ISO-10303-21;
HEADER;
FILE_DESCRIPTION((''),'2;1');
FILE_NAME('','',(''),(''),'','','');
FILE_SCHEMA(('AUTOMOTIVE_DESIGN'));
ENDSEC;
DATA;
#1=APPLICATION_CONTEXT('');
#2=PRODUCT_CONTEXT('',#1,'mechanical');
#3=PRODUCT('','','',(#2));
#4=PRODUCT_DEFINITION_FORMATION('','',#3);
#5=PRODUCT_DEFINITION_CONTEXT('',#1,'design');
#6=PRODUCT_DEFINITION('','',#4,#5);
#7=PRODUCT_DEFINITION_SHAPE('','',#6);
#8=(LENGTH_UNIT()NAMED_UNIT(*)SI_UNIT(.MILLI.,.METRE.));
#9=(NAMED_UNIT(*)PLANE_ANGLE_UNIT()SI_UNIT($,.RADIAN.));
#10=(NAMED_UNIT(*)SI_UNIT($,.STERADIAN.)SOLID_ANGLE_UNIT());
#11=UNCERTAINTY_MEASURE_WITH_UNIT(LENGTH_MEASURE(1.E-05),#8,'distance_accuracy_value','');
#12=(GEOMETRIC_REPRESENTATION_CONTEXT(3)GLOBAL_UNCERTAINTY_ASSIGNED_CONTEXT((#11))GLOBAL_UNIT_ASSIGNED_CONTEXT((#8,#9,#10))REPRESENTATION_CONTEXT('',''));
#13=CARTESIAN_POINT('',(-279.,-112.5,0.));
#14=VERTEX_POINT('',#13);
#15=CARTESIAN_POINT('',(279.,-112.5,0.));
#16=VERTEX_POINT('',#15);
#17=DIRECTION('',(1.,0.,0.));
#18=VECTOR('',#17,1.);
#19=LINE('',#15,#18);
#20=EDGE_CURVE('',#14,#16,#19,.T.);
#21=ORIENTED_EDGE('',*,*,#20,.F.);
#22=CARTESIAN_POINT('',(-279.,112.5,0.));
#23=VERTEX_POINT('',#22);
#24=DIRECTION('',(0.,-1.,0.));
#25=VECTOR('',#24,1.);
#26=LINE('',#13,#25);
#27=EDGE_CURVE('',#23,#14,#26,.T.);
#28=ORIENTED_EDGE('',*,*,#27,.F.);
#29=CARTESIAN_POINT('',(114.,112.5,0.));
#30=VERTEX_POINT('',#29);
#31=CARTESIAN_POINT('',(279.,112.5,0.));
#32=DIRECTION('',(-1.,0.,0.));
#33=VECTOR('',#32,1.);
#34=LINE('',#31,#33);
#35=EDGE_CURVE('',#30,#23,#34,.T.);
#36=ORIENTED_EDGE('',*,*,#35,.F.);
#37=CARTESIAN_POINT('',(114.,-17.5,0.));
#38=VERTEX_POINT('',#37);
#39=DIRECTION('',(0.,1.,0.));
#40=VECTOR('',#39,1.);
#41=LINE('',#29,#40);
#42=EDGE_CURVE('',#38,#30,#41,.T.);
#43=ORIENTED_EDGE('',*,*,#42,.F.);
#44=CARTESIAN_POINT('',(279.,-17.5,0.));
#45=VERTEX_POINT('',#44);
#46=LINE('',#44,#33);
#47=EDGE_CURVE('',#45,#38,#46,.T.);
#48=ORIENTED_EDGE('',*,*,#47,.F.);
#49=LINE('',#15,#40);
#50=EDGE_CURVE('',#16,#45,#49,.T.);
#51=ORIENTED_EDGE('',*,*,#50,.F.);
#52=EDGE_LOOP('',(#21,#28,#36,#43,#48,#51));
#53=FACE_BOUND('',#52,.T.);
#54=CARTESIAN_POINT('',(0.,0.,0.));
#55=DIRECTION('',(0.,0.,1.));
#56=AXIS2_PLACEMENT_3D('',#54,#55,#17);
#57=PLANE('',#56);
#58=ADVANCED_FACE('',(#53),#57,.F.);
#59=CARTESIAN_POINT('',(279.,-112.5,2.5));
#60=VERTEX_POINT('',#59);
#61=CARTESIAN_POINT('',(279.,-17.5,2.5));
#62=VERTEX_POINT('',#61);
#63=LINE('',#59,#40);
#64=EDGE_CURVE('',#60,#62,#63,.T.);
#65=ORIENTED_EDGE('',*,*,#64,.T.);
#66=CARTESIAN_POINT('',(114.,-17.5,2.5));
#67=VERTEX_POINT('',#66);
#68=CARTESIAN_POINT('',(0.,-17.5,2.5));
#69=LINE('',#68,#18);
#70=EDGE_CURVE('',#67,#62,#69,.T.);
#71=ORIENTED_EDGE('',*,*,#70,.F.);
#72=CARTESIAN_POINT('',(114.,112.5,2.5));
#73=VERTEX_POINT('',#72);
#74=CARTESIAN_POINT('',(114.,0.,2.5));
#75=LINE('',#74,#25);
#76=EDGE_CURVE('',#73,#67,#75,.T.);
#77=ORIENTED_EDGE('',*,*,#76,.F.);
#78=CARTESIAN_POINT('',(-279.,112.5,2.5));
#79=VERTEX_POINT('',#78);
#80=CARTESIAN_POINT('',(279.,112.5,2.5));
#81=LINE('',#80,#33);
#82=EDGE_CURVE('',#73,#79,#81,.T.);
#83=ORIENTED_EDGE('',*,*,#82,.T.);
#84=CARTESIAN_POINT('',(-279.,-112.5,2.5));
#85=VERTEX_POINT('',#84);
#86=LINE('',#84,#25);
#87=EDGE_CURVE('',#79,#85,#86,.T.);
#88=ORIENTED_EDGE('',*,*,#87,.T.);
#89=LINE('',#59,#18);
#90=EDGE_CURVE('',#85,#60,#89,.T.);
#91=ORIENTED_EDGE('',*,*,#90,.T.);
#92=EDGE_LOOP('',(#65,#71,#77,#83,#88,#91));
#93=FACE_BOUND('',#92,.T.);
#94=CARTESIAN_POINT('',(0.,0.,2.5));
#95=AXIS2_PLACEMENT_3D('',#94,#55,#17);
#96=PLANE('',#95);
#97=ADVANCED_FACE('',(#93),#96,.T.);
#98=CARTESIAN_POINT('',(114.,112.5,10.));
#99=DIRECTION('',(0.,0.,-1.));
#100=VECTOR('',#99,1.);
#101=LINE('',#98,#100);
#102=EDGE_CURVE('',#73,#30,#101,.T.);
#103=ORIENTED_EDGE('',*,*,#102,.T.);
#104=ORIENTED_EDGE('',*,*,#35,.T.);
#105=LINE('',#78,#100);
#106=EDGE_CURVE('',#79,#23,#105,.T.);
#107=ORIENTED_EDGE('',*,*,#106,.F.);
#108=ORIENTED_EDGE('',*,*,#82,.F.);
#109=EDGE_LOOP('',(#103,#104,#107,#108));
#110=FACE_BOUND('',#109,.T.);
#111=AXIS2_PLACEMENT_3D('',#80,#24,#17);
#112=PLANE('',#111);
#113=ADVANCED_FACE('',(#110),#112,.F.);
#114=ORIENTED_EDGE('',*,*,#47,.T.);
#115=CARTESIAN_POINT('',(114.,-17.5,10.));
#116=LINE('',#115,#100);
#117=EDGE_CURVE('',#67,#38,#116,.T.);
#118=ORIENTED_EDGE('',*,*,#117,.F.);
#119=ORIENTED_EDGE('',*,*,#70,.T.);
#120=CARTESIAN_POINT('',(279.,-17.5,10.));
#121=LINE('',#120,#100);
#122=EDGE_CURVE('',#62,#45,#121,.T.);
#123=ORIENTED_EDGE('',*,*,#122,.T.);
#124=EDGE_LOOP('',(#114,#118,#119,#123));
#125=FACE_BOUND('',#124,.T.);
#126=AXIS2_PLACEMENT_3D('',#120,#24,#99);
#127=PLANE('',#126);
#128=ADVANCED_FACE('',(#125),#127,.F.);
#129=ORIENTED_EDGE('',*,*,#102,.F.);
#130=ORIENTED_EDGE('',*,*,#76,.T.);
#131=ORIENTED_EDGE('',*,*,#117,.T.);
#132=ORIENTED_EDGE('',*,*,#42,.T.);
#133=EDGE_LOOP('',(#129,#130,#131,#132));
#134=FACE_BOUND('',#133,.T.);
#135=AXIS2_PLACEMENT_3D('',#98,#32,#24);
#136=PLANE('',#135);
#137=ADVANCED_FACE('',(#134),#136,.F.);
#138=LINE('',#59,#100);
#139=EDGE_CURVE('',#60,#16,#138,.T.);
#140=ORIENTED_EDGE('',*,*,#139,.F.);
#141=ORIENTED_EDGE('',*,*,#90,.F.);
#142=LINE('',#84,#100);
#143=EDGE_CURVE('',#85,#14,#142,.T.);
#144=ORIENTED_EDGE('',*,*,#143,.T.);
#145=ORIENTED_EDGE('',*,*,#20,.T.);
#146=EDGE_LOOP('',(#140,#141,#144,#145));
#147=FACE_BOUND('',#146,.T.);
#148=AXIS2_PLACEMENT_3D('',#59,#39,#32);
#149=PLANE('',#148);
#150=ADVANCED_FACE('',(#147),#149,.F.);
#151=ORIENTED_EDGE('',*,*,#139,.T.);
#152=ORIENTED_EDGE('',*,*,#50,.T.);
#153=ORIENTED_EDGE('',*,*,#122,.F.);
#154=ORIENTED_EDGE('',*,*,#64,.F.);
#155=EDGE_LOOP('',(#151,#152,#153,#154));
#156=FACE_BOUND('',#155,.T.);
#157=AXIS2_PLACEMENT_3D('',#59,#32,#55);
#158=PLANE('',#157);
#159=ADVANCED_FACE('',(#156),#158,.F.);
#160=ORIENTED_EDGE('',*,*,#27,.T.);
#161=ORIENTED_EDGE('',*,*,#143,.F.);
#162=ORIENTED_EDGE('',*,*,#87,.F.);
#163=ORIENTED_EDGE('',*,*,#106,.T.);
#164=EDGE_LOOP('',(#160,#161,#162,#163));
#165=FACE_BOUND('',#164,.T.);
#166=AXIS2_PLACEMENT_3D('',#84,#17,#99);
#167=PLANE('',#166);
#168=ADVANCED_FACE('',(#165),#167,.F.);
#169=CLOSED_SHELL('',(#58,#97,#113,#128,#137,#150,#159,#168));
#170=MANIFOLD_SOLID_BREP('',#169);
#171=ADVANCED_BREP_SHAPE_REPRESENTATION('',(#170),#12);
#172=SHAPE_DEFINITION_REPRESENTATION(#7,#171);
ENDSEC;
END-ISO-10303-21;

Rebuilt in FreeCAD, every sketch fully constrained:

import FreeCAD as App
import Part
import Sketcher

doc = App.newDocument("Part")
body = doc.addObject("PartDesign::Body", "Body")

# Sketch on XY plane
sketch1 = body.newObject("Sketcher::SketchObject", "Sketch")
sketch1.AttachmentSupport = (doc.getObject("XY_Plane"), [""])
sketch1.MapMode = "FlatFace"
sketch1.addGeometry(Part.LineSegment(App.Vector(-279, 112, 0), App.Vector(-279, -112, 0)), False)
sketch1.addGeometry(Part.LineSegment(App.Vector(-279, -112, 0), App.Vector(279, -112, 0)), False)
sketch1.addGeometry(Part.LineSegment(App.Vector(279, -112, 0), App.Vector(279, 112, 0)), False)
sketch1.addGeometry(Part.LineSegment(App.Vector(279, 112, 0), App.Vector(-279, 112, 0)), False)
sketch1.addConstraint(Sketcher.Constraint("Coincident", 0, 2, 1, 1))
sketch1.addConstraint(Sketcher.Constraint("Coincident", 1, 2, 2, 1))
sketch1.addConstraint(Sketcher.Constraint("Coincident", 2, 2, 3, 1))
sketch1.addConstraint(Sketcher.Constraint("Coincident", 3, 2, 0, 1))
sketch1.addConstraint(Sketcher.Constraint("Vertical", 0))
sketch1.addConstraint(Sketcher.Constraint("Horizontal", 1))
sketch1.addConstraint(Sketcher.Constraint("Vertical", 2))
sketch1.addConstraint(Sketcher.Constraint("Horizontal", 3))
sketch1.addConstraint(Sketcher.Constraint("Symmetric", 0, 2, 2, 2, -1, 1))
sketch1.addConstraint(Sketcher.Constraint("DistanceX", 1, 1, 1, 2, 558.0))
sketch1.addConstraint(Sketcher.Constraint("DistanceY", 0, 2, 0, 1, 225.0))
pad1 = body.newObject("PartDesign::Pad", "Pad")
pad1.Profile = sketch1
pad1.Length = 2.5

# Sketch on XY plane
sketch2 = body.newObject("Sketcher::SketchObject", "Sketch001")
sketch2.AttachmentSupport = (doc.getObject("XY_Plane"), [""])
sketch2.MapMode = "FlatFace"
sketch2.addGeometry(Part.LineSegment(App.Vector(279, 112, 0), App.Vector(279, -18, 0)), False)
sketch2.addGeometry(Part.LineSegment(App.Vector(279, -18, 0), App.Vector(114, -18, 0)), False)
sketch2.addGeometry(Part.LineSegment(App.Vector(114, -18, 0), App.Vector(114, 112, 0)), False)
sketch2.addGeometry(Part.LineSegment(App.Vector(114, 112, 0), App.Vector(279, 112, 0)), False)
sketch2.addConstraint(Sketcher.Constraint("Coincident", 0, 2, 1, 1))
sketch2.addConstraint(Sketcher.Constraint("Coincident", 1, 2, 2, 1))
sketch2.addConstraint(Sketcher.Constraint("Coincident", 2, 2, 3, 1))
sketch2.addConstraint(Sketcher.Constraint("Coincident", 3, 2, 0, 1))
sketch2.addConstraint(Sketcher.Constraint("Vertical", 0))
sketch2.addConstraint(Sketcher.Constraint("Horizontal", 1))
sketch2.addConstraint(Sketcher.Constraint("Vertical", 2))
sketch2.addConstraint(Sketcher.Constraint("Horizontal", 3))
sketch2.addConstraint(Sketcher.Constraint("DistanceX", 1, 2, 1, 1, 165.0))
sketch2.addConstraint(Sketcher.Constraint("DistanceY", 0, 2, 0, 1, 130.0))
sketch2.addConstraint(Sketcher.Constraint("DistanceX", -1, 1, 0, 2, 279.0))
sketch2.addConstraint(Sketcher.Constraint("DistanceY", 0, 2, -1, 1, 17.5))
pocket1 = body.newObject("PartDesign::Pocket", "Pocket")
pocket1.Profile = sketch2
pocket1.Length = 10
pocket1.Reversed = True

doc.recompute()
